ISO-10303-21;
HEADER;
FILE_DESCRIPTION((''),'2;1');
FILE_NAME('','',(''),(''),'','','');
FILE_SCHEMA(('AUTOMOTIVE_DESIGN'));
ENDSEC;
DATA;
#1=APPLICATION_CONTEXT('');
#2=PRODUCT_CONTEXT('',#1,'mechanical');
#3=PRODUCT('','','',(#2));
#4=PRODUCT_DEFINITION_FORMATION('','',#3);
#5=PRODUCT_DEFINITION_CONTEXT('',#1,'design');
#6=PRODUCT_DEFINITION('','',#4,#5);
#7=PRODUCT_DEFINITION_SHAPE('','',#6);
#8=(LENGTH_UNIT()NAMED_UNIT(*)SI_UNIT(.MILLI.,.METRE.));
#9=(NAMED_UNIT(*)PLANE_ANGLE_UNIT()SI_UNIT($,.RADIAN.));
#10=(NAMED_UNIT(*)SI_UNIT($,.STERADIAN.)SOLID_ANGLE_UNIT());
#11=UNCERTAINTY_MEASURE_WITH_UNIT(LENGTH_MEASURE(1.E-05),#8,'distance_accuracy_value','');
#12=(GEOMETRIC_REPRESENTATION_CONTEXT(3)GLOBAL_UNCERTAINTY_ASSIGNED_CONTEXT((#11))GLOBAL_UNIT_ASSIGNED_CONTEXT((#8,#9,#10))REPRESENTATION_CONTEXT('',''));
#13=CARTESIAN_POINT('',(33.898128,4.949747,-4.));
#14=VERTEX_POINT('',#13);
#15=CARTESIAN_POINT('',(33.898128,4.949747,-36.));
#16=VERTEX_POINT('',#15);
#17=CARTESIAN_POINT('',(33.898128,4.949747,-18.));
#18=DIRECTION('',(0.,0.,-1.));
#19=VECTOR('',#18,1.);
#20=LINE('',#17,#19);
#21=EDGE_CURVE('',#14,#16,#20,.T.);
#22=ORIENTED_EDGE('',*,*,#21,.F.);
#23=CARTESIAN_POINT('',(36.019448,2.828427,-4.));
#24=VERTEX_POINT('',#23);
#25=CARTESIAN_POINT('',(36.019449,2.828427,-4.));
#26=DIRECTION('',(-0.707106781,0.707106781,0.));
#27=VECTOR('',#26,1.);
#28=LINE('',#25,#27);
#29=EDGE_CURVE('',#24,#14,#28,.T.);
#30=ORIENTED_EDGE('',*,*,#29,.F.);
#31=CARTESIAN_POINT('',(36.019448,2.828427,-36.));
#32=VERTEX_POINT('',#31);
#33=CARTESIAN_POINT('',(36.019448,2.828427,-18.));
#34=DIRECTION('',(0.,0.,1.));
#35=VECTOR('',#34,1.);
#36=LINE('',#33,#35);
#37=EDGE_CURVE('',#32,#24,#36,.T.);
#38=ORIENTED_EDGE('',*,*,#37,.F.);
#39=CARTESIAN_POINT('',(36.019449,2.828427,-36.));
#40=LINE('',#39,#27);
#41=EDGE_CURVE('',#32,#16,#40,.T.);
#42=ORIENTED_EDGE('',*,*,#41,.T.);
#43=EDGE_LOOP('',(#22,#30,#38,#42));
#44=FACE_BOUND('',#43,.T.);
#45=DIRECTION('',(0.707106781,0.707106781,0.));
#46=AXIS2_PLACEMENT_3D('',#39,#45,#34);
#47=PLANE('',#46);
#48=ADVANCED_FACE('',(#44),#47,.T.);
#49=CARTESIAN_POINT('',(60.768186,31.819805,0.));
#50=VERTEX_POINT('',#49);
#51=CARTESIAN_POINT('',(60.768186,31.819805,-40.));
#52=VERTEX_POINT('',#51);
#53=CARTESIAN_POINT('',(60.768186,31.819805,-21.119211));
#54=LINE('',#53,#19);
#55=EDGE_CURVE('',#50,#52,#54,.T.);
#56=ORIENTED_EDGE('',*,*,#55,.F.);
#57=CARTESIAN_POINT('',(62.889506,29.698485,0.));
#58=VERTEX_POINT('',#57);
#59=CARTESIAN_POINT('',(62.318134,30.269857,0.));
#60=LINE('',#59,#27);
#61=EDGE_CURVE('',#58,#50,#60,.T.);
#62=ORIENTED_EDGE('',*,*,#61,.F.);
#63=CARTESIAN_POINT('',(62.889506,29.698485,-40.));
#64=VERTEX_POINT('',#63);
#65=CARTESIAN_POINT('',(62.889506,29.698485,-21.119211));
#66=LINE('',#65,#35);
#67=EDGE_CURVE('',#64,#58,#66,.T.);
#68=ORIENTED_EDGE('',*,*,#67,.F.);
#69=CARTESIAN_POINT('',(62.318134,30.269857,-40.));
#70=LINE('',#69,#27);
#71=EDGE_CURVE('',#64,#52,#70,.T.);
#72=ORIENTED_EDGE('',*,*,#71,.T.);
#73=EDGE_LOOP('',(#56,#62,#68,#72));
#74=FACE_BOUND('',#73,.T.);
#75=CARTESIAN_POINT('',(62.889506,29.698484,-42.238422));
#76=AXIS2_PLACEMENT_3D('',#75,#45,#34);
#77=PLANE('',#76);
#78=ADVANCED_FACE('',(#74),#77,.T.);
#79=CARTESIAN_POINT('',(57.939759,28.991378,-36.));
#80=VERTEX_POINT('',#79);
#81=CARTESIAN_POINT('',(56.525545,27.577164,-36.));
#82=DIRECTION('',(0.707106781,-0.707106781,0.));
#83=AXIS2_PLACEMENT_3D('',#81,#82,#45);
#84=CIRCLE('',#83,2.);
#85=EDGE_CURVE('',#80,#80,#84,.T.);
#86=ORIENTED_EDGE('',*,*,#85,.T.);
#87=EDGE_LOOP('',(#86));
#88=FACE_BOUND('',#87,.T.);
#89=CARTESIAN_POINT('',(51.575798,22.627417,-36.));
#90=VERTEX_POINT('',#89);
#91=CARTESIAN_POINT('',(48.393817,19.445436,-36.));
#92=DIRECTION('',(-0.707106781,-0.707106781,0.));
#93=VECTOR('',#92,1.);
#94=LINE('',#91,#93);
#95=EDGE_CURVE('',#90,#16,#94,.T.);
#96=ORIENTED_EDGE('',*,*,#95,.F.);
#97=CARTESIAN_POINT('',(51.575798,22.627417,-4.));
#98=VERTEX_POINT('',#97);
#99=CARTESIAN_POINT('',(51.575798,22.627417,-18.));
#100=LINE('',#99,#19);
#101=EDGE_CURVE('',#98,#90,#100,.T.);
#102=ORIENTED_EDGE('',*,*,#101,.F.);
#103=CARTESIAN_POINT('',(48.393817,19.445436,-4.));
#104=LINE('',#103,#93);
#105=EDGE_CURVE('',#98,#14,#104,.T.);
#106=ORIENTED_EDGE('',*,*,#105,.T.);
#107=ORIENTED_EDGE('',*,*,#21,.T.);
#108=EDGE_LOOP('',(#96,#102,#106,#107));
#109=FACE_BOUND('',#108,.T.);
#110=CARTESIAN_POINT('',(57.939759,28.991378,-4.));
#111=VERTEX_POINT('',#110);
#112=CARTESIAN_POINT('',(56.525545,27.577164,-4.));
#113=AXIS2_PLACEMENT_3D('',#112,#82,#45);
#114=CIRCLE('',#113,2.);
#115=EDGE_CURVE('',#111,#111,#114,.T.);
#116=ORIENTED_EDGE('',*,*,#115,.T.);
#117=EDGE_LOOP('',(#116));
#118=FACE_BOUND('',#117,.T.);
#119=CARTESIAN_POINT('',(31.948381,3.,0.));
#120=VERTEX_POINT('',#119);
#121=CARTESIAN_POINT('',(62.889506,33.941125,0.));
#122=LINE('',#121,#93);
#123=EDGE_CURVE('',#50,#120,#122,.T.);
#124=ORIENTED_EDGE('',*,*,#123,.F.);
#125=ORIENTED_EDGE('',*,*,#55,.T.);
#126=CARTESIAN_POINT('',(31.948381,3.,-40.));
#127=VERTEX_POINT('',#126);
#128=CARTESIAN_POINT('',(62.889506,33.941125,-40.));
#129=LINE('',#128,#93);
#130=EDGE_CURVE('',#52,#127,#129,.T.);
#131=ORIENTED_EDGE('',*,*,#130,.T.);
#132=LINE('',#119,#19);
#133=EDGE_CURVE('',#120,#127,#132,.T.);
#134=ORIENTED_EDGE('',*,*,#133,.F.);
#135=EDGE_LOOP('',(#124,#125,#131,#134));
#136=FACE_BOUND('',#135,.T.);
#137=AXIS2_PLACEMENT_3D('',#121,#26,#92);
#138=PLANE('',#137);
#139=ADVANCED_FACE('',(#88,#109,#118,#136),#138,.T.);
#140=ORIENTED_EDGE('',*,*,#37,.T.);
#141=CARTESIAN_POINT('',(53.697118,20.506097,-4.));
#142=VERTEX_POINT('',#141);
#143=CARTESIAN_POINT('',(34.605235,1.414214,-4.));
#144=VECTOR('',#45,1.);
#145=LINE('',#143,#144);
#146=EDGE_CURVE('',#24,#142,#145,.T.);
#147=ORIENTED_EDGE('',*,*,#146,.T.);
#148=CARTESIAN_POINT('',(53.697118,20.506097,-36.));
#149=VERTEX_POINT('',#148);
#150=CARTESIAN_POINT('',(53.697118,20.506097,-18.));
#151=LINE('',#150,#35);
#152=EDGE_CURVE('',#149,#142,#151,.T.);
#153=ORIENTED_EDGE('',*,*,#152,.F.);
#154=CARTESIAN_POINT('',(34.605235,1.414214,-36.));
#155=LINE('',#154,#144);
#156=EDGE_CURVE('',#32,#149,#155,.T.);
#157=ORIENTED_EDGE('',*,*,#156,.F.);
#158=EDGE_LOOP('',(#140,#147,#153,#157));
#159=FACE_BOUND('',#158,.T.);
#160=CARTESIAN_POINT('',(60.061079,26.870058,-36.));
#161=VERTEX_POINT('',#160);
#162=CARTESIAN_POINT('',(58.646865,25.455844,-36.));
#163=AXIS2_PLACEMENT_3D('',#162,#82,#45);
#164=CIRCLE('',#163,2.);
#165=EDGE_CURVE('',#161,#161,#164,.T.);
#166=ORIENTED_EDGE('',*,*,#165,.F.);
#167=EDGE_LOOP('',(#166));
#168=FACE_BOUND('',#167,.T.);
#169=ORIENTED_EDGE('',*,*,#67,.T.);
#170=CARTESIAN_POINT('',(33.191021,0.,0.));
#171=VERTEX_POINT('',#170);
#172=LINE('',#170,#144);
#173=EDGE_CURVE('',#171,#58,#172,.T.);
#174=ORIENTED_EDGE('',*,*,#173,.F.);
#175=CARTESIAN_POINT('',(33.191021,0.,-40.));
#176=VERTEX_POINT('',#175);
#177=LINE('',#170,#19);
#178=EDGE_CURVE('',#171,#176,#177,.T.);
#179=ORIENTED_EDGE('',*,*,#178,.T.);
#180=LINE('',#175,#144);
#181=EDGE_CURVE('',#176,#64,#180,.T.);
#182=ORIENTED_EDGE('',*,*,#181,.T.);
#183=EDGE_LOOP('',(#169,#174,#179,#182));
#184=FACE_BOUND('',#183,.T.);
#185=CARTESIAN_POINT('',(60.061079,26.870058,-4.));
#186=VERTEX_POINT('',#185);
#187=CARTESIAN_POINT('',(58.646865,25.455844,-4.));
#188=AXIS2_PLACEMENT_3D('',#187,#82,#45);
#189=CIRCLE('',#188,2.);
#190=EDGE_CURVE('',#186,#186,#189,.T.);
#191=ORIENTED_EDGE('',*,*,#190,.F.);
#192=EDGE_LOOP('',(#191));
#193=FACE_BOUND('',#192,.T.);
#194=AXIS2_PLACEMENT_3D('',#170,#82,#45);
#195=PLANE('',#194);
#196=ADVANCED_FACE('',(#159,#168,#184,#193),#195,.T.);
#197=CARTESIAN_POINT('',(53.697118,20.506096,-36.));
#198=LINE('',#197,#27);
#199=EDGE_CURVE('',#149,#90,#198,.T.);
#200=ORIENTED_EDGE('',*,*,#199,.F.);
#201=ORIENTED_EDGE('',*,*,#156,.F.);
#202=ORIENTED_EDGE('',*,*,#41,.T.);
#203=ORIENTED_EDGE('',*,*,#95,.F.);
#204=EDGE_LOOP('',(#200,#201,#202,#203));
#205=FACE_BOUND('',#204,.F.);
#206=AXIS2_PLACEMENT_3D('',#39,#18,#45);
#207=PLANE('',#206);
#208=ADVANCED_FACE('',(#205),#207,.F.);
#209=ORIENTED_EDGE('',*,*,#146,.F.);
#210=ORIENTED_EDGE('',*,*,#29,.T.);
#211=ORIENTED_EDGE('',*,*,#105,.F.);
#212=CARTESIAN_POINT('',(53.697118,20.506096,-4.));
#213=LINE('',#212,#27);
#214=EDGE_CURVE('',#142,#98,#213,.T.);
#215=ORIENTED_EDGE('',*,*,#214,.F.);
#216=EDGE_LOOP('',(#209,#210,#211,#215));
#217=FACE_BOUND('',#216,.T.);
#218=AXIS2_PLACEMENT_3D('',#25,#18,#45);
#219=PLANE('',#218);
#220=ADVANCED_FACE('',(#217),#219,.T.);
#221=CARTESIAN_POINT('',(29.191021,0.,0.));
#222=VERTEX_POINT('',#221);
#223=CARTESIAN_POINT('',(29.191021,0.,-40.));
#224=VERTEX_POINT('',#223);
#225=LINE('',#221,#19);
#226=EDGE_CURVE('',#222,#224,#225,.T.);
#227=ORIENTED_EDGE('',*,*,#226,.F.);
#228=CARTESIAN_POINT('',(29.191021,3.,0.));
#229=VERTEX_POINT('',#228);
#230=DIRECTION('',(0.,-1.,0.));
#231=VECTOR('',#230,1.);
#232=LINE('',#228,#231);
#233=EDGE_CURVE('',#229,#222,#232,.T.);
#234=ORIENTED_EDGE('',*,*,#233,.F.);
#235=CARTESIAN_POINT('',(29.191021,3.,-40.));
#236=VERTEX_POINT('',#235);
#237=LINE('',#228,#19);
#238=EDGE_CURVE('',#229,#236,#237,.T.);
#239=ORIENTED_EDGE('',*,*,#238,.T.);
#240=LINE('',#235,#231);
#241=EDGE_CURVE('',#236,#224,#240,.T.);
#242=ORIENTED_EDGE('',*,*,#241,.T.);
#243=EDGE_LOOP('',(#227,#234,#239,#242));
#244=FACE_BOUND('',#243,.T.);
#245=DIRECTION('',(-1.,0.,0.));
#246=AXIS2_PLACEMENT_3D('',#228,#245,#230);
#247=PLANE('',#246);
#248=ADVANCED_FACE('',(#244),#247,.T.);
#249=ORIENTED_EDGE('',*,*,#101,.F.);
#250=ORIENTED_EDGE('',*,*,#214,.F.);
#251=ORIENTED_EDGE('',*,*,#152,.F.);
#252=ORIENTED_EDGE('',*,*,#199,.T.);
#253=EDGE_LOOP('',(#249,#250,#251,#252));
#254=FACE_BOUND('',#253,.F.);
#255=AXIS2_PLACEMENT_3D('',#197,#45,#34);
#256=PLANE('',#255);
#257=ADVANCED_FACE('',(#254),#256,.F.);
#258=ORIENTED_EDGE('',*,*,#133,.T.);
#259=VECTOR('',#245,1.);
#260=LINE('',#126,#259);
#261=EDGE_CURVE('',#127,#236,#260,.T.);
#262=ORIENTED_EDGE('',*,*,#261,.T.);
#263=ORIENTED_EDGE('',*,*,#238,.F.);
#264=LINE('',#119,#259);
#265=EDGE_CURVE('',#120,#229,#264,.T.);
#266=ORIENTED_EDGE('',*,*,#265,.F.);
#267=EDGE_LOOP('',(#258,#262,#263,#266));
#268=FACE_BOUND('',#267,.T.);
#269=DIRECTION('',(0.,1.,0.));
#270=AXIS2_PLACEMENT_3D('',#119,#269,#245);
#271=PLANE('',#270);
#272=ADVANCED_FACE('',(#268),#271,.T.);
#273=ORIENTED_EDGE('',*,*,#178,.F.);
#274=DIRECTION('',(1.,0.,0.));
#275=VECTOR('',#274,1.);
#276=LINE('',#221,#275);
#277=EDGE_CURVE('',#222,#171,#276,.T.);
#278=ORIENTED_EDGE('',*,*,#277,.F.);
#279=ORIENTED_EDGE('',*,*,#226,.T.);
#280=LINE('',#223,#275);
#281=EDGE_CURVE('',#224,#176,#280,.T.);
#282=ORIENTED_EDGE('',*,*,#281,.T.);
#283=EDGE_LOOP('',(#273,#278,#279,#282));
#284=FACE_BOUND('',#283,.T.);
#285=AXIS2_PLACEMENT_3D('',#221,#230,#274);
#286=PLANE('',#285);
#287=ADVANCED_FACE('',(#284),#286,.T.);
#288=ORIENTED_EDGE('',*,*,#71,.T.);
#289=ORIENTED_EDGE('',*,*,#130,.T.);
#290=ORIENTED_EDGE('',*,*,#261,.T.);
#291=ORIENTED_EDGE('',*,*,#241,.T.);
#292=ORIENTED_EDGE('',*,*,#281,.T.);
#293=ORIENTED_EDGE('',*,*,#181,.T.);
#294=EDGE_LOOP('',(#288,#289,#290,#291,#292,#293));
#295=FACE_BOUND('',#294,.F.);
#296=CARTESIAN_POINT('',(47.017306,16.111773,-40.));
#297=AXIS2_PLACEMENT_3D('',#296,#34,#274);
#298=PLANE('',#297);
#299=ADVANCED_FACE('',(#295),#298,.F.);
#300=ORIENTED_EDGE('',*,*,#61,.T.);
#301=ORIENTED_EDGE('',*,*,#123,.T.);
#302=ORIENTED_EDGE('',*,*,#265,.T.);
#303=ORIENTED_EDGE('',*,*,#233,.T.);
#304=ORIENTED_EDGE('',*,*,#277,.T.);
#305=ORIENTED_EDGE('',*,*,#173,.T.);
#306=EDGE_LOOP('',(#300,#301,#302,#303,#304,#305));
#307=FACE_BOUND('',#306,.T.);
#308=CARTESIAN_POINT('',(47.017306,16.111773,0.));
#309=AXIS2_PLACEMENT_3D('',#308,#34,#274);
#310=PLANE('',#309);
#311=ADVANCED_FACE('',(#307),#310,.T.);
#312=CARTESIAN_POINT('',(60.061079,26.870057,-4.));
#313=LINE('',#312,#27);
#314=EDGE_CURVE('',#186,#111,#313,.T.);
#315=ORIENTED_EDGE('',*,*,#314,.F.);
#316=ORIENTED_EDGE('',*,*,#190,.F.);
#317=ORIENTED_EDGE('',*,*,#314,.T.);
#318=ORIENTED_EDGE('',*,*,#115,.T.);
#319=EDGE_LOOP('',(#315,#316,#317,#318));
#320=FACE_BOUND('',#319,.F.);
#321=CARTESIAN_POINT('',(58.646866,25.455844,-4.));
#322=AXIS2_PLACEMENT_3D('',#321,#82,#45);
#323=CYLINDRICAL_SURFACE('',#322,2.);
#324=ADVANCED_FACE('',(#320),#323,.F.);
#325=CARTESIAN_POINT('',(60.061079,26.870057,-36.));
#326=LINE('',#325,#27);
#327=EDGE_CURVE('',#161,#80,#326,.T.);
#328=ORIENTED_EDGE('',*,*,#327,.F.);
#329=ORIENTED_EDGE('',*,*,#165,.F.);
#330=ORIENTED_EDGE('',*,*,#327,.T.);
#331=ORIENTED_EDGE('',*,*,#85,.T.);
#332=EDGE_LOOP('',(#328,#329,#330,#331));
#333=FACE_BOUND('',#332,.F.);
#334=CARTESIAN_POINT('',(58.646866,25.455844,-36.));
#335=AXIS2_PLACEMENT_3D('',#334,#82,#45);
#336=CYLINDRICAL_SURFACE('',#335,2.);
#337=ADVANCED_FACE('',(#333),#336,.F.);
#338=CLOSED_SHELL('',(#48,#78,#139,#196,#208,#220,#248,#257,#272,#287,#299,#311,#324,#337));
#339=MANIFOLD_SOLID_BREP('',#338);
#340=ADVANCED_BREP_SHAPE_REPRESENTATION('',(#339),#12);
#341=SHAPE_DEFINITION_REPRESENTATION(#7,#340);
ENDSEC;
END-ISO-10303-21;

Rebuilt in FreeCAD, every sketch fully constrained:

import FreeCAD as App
import Part
import Sketcher

V = App.Vector
Q = App.Units.Quantity


def add_polygon(sketch, points):
    """Adds a closed chain of lines whose ends are joined by coincident constraints."""
    first, n = sketch.GeometryCount, len(points)
    for a, b in zip(points, points[1:] + points[:1]):
        sketch.addGeometry(Part.LineSegment(App.Vector(*a, 0), App.Vector(*b, 0)), False)
    for i in range(n):
        sketch.addConstraint(Sketcher.Constraint("Coincident", first + i, 2, first + (i + 1) % n, 1))

doc = App.newDocument("Part")
params = doc.addObject("Spreadsheet::Sheet", "Params")
for row, (alias, value) in enumerate([
    ("sketch1_width", "4 mm"),
    ("sketch1_height", "3 mm"),
    ("sketch1_length", "45 mm"),
    ("sketch1_length2", "3 mm"),
    ("pad1_length", "40 mm"),
    ("sketch2_diameter", "4 mm"),
    ("pocket1_length", "5 mm"),
    ("sketch3_width", "25 mm"),
    ("sketch3_height", "32 mm"),
    ("pocket2_length", "5 mm"),
], start=1):
    params.set(f"A{row}", alias)
    params.set(f"B{row}", "=" + value)
    params.setAlias(f"B{row}", alias)

body = doc.addObject("PartDesign::Body", "Body")

sketch1 = body.newObject("Sketcher::SketchObject", "Sketch")
sketch1.AttachmentSupport = (doc.getObject("XY_Plane"), [""])
sketch1.MapMode = "FlatFace"
add_polygon(sketch1, [(33.2, 0), (65, 31.8), (62.9, 33.9), (31.9, 3), (29.2, 3), (29.2, 0)])
sketch1.addConstraint(Sketcher.Constraint("Horizontal", 3))
sketch1.addConstraint(Sketcher.Constraint("Vertical", 4))
sketch1.addConstraint(Sketcher.Constraint("Horizontal", 5))
sketch1.addConstraint(Sketcher.Constraint("PointOnObject", 4, 2, -1))
sketch1.addConstraint(Sketcher.Constraint("Perpendicular", 0, 1))
sketch1.addConstraint(Sketcher.Constraint("Perpendicular", 1, 2))
sketch1.addConstraint(Sketcher.Constraint("DistanceX", 5, 1, 5, 2, 4.0))
sketch1.addConstraint(Sketcher.Constraint("DistanceY", 4, 2, 4, 1, 3.0))
sketch1.addConstraint(Sketcher.Constraint("Angle", 0, Q("45 deg")))
sketch1.addConstraint(Sketcher.Constraint("Distance", 0, 45.0))
sketch1.addConstraint(Sketcher.Constraint("Distance", 1, 3.0))
sketch1.addConstraint(Sketcher.Constraint("DistanceX", -1, 1, 2, 2, 31.948381))
sketch1.setExpression("Constraints[12]", "Params.sketch1_width")
sketch1.setExpression("Constraints[13]", "Params.sketch1_height")
sketch1.setExpression("Constraints[15]", "Params.sketch1_length")
sketch1.setExpression("Constraints[16]", "Params.sketch1_length2")
pad1 = body.newObject("PartDesign::Pad", "Pad")
pad1.Profile = sketch1
pad1.setExpression("Length", "Params.pad1_length")
pad1.Reversed = True

sketch2 = body.newObject("Sketcher::SketchObject", "Sketch001")
sketch2.Placement = App.Placement(V(16.595511, -16.595511, 0), App.Rotation(V(0.707106781, 0.707106781, 0), V(0, 0, 0.999999999), V(0.707106781, -0.707106781, 0), "ZXY"))
sketch2.addGeometry(Part.Circle(V(59.5, -36, 0), V(0, 0, 1), 2), False)
sketch2.addGeometry(Part.Circle(V(59.5, -4, 0), V(0, 0, 1), 2), False)
sketch2.addConstraint(Sketcher.Constraint("Equal", 0, 1))
sketch2.addConstraint(Sketcher.Constraint("Vertical", 0, 3, 1, 3))
sketch2.addConstraint(Sketcher.Constraint("Diameter", 0, 4.0))
sketch2.addConstraint(Sketcher.Constraint("DistanceY", 0, 3, -1, 1, 36.0))
sketch2.addConstraint(Sketcher.Constraint("DistanceY", 1, 3, -1, 1, 4.0))
sketch2.addConstraint(Sketcher.Constraint("DistanceX", -1, 1, 0, 3, 59.469596))
sketch2.setExpression("Constraints[2]", "Params.sketch2_diameter")
pocket1 = body.newObject("PartDesign::Pocket", "Pocket")
pocket1.Profile = sketch2
pocket1.setExpression("Length", "Params.pocket1_length")

sketch3 = body.newObject("Sketcher::SketchObject", "Sketch002")
sketch3.Placement = App.Placement(V(16.595511, -16.595511, 0), App.Rotation(V(0.707106781, 0.707106781, 0), V(0, 0, 0.999999999), V(0.707106781, -0.707106781, 0), "ZXY"))
add_polygon(sketch3, [(65, 9), (65, -42), (80, -42), (80, 9)])
add_polygon(sketch3, [(27, -4), (27, -36), (52, -36), (52, -4)])
sketch3.addConstraint(Sketcher.Constraint("Vertical", 0))
sketch3.addConstraint(Sketcher.Constraint("Horizontal", 1))
sketch3.addConstraint(Sketcher.Constraint("Vertical", 2))
sketch3.addConstraint(Sketcher.Constraint("Horizontal", 3))
sketch3.addConstraint(Sketcher.Constraint("Vertical", 4))
sketch3.addConstraint(Sketcher.Constraint("Horizontal", 5))
sketch3.addConstraint(Sketcher.Constraint("Vertical", 6))
sketch3.addConstraint(Sketcher.Constraint("Horizontal", 7))
sketch3.addConstraint(Sketcher.Constraint("DistanceX", 5, 1, 5, 2, 25.0))
sketch3.addConstraint(Sketcher.Constraint("DistanceY", 4, 2, 4, 1, 32.0))
sketch3.addConstraint(Sketcher.Constraint("DistanceY", 4, 2, -1, 1, 36.0))
sketch3.addConstraint(Sketcher.Constraint("DistanceX", 4, 2, 0, 2, 38.0))
sketch3.addConstraint(Sketcher.Constraint("DistanceX", 1, 1, 1, 2, 14.874642))
sketch3.addConstraint(Sketcher.Constraint("DistanceY", 0, 2, 0, 1, 51.167498))
sketch3.addConstraint(Sketcher.Constraint("DistanceY", 0, 2, -1, 1, 42.238422))
sketch3.addConstraint(Sketcher.Constraint("DistanceX", -1, 1, 0, 2, 65.469596))
sketch3.setExpression("Constraints[16]", "Params.sketch3_width")
sketch3.setExpression("Constraints[17]", "Params.sketch3_height")
pocket2 = body.newObject("PartDesign::Pocket", "Pocket001")
pocket2.Profile = sketch3
pocket2.setExpression("Length", "Params.pocket2_length")

doc.recompute()
